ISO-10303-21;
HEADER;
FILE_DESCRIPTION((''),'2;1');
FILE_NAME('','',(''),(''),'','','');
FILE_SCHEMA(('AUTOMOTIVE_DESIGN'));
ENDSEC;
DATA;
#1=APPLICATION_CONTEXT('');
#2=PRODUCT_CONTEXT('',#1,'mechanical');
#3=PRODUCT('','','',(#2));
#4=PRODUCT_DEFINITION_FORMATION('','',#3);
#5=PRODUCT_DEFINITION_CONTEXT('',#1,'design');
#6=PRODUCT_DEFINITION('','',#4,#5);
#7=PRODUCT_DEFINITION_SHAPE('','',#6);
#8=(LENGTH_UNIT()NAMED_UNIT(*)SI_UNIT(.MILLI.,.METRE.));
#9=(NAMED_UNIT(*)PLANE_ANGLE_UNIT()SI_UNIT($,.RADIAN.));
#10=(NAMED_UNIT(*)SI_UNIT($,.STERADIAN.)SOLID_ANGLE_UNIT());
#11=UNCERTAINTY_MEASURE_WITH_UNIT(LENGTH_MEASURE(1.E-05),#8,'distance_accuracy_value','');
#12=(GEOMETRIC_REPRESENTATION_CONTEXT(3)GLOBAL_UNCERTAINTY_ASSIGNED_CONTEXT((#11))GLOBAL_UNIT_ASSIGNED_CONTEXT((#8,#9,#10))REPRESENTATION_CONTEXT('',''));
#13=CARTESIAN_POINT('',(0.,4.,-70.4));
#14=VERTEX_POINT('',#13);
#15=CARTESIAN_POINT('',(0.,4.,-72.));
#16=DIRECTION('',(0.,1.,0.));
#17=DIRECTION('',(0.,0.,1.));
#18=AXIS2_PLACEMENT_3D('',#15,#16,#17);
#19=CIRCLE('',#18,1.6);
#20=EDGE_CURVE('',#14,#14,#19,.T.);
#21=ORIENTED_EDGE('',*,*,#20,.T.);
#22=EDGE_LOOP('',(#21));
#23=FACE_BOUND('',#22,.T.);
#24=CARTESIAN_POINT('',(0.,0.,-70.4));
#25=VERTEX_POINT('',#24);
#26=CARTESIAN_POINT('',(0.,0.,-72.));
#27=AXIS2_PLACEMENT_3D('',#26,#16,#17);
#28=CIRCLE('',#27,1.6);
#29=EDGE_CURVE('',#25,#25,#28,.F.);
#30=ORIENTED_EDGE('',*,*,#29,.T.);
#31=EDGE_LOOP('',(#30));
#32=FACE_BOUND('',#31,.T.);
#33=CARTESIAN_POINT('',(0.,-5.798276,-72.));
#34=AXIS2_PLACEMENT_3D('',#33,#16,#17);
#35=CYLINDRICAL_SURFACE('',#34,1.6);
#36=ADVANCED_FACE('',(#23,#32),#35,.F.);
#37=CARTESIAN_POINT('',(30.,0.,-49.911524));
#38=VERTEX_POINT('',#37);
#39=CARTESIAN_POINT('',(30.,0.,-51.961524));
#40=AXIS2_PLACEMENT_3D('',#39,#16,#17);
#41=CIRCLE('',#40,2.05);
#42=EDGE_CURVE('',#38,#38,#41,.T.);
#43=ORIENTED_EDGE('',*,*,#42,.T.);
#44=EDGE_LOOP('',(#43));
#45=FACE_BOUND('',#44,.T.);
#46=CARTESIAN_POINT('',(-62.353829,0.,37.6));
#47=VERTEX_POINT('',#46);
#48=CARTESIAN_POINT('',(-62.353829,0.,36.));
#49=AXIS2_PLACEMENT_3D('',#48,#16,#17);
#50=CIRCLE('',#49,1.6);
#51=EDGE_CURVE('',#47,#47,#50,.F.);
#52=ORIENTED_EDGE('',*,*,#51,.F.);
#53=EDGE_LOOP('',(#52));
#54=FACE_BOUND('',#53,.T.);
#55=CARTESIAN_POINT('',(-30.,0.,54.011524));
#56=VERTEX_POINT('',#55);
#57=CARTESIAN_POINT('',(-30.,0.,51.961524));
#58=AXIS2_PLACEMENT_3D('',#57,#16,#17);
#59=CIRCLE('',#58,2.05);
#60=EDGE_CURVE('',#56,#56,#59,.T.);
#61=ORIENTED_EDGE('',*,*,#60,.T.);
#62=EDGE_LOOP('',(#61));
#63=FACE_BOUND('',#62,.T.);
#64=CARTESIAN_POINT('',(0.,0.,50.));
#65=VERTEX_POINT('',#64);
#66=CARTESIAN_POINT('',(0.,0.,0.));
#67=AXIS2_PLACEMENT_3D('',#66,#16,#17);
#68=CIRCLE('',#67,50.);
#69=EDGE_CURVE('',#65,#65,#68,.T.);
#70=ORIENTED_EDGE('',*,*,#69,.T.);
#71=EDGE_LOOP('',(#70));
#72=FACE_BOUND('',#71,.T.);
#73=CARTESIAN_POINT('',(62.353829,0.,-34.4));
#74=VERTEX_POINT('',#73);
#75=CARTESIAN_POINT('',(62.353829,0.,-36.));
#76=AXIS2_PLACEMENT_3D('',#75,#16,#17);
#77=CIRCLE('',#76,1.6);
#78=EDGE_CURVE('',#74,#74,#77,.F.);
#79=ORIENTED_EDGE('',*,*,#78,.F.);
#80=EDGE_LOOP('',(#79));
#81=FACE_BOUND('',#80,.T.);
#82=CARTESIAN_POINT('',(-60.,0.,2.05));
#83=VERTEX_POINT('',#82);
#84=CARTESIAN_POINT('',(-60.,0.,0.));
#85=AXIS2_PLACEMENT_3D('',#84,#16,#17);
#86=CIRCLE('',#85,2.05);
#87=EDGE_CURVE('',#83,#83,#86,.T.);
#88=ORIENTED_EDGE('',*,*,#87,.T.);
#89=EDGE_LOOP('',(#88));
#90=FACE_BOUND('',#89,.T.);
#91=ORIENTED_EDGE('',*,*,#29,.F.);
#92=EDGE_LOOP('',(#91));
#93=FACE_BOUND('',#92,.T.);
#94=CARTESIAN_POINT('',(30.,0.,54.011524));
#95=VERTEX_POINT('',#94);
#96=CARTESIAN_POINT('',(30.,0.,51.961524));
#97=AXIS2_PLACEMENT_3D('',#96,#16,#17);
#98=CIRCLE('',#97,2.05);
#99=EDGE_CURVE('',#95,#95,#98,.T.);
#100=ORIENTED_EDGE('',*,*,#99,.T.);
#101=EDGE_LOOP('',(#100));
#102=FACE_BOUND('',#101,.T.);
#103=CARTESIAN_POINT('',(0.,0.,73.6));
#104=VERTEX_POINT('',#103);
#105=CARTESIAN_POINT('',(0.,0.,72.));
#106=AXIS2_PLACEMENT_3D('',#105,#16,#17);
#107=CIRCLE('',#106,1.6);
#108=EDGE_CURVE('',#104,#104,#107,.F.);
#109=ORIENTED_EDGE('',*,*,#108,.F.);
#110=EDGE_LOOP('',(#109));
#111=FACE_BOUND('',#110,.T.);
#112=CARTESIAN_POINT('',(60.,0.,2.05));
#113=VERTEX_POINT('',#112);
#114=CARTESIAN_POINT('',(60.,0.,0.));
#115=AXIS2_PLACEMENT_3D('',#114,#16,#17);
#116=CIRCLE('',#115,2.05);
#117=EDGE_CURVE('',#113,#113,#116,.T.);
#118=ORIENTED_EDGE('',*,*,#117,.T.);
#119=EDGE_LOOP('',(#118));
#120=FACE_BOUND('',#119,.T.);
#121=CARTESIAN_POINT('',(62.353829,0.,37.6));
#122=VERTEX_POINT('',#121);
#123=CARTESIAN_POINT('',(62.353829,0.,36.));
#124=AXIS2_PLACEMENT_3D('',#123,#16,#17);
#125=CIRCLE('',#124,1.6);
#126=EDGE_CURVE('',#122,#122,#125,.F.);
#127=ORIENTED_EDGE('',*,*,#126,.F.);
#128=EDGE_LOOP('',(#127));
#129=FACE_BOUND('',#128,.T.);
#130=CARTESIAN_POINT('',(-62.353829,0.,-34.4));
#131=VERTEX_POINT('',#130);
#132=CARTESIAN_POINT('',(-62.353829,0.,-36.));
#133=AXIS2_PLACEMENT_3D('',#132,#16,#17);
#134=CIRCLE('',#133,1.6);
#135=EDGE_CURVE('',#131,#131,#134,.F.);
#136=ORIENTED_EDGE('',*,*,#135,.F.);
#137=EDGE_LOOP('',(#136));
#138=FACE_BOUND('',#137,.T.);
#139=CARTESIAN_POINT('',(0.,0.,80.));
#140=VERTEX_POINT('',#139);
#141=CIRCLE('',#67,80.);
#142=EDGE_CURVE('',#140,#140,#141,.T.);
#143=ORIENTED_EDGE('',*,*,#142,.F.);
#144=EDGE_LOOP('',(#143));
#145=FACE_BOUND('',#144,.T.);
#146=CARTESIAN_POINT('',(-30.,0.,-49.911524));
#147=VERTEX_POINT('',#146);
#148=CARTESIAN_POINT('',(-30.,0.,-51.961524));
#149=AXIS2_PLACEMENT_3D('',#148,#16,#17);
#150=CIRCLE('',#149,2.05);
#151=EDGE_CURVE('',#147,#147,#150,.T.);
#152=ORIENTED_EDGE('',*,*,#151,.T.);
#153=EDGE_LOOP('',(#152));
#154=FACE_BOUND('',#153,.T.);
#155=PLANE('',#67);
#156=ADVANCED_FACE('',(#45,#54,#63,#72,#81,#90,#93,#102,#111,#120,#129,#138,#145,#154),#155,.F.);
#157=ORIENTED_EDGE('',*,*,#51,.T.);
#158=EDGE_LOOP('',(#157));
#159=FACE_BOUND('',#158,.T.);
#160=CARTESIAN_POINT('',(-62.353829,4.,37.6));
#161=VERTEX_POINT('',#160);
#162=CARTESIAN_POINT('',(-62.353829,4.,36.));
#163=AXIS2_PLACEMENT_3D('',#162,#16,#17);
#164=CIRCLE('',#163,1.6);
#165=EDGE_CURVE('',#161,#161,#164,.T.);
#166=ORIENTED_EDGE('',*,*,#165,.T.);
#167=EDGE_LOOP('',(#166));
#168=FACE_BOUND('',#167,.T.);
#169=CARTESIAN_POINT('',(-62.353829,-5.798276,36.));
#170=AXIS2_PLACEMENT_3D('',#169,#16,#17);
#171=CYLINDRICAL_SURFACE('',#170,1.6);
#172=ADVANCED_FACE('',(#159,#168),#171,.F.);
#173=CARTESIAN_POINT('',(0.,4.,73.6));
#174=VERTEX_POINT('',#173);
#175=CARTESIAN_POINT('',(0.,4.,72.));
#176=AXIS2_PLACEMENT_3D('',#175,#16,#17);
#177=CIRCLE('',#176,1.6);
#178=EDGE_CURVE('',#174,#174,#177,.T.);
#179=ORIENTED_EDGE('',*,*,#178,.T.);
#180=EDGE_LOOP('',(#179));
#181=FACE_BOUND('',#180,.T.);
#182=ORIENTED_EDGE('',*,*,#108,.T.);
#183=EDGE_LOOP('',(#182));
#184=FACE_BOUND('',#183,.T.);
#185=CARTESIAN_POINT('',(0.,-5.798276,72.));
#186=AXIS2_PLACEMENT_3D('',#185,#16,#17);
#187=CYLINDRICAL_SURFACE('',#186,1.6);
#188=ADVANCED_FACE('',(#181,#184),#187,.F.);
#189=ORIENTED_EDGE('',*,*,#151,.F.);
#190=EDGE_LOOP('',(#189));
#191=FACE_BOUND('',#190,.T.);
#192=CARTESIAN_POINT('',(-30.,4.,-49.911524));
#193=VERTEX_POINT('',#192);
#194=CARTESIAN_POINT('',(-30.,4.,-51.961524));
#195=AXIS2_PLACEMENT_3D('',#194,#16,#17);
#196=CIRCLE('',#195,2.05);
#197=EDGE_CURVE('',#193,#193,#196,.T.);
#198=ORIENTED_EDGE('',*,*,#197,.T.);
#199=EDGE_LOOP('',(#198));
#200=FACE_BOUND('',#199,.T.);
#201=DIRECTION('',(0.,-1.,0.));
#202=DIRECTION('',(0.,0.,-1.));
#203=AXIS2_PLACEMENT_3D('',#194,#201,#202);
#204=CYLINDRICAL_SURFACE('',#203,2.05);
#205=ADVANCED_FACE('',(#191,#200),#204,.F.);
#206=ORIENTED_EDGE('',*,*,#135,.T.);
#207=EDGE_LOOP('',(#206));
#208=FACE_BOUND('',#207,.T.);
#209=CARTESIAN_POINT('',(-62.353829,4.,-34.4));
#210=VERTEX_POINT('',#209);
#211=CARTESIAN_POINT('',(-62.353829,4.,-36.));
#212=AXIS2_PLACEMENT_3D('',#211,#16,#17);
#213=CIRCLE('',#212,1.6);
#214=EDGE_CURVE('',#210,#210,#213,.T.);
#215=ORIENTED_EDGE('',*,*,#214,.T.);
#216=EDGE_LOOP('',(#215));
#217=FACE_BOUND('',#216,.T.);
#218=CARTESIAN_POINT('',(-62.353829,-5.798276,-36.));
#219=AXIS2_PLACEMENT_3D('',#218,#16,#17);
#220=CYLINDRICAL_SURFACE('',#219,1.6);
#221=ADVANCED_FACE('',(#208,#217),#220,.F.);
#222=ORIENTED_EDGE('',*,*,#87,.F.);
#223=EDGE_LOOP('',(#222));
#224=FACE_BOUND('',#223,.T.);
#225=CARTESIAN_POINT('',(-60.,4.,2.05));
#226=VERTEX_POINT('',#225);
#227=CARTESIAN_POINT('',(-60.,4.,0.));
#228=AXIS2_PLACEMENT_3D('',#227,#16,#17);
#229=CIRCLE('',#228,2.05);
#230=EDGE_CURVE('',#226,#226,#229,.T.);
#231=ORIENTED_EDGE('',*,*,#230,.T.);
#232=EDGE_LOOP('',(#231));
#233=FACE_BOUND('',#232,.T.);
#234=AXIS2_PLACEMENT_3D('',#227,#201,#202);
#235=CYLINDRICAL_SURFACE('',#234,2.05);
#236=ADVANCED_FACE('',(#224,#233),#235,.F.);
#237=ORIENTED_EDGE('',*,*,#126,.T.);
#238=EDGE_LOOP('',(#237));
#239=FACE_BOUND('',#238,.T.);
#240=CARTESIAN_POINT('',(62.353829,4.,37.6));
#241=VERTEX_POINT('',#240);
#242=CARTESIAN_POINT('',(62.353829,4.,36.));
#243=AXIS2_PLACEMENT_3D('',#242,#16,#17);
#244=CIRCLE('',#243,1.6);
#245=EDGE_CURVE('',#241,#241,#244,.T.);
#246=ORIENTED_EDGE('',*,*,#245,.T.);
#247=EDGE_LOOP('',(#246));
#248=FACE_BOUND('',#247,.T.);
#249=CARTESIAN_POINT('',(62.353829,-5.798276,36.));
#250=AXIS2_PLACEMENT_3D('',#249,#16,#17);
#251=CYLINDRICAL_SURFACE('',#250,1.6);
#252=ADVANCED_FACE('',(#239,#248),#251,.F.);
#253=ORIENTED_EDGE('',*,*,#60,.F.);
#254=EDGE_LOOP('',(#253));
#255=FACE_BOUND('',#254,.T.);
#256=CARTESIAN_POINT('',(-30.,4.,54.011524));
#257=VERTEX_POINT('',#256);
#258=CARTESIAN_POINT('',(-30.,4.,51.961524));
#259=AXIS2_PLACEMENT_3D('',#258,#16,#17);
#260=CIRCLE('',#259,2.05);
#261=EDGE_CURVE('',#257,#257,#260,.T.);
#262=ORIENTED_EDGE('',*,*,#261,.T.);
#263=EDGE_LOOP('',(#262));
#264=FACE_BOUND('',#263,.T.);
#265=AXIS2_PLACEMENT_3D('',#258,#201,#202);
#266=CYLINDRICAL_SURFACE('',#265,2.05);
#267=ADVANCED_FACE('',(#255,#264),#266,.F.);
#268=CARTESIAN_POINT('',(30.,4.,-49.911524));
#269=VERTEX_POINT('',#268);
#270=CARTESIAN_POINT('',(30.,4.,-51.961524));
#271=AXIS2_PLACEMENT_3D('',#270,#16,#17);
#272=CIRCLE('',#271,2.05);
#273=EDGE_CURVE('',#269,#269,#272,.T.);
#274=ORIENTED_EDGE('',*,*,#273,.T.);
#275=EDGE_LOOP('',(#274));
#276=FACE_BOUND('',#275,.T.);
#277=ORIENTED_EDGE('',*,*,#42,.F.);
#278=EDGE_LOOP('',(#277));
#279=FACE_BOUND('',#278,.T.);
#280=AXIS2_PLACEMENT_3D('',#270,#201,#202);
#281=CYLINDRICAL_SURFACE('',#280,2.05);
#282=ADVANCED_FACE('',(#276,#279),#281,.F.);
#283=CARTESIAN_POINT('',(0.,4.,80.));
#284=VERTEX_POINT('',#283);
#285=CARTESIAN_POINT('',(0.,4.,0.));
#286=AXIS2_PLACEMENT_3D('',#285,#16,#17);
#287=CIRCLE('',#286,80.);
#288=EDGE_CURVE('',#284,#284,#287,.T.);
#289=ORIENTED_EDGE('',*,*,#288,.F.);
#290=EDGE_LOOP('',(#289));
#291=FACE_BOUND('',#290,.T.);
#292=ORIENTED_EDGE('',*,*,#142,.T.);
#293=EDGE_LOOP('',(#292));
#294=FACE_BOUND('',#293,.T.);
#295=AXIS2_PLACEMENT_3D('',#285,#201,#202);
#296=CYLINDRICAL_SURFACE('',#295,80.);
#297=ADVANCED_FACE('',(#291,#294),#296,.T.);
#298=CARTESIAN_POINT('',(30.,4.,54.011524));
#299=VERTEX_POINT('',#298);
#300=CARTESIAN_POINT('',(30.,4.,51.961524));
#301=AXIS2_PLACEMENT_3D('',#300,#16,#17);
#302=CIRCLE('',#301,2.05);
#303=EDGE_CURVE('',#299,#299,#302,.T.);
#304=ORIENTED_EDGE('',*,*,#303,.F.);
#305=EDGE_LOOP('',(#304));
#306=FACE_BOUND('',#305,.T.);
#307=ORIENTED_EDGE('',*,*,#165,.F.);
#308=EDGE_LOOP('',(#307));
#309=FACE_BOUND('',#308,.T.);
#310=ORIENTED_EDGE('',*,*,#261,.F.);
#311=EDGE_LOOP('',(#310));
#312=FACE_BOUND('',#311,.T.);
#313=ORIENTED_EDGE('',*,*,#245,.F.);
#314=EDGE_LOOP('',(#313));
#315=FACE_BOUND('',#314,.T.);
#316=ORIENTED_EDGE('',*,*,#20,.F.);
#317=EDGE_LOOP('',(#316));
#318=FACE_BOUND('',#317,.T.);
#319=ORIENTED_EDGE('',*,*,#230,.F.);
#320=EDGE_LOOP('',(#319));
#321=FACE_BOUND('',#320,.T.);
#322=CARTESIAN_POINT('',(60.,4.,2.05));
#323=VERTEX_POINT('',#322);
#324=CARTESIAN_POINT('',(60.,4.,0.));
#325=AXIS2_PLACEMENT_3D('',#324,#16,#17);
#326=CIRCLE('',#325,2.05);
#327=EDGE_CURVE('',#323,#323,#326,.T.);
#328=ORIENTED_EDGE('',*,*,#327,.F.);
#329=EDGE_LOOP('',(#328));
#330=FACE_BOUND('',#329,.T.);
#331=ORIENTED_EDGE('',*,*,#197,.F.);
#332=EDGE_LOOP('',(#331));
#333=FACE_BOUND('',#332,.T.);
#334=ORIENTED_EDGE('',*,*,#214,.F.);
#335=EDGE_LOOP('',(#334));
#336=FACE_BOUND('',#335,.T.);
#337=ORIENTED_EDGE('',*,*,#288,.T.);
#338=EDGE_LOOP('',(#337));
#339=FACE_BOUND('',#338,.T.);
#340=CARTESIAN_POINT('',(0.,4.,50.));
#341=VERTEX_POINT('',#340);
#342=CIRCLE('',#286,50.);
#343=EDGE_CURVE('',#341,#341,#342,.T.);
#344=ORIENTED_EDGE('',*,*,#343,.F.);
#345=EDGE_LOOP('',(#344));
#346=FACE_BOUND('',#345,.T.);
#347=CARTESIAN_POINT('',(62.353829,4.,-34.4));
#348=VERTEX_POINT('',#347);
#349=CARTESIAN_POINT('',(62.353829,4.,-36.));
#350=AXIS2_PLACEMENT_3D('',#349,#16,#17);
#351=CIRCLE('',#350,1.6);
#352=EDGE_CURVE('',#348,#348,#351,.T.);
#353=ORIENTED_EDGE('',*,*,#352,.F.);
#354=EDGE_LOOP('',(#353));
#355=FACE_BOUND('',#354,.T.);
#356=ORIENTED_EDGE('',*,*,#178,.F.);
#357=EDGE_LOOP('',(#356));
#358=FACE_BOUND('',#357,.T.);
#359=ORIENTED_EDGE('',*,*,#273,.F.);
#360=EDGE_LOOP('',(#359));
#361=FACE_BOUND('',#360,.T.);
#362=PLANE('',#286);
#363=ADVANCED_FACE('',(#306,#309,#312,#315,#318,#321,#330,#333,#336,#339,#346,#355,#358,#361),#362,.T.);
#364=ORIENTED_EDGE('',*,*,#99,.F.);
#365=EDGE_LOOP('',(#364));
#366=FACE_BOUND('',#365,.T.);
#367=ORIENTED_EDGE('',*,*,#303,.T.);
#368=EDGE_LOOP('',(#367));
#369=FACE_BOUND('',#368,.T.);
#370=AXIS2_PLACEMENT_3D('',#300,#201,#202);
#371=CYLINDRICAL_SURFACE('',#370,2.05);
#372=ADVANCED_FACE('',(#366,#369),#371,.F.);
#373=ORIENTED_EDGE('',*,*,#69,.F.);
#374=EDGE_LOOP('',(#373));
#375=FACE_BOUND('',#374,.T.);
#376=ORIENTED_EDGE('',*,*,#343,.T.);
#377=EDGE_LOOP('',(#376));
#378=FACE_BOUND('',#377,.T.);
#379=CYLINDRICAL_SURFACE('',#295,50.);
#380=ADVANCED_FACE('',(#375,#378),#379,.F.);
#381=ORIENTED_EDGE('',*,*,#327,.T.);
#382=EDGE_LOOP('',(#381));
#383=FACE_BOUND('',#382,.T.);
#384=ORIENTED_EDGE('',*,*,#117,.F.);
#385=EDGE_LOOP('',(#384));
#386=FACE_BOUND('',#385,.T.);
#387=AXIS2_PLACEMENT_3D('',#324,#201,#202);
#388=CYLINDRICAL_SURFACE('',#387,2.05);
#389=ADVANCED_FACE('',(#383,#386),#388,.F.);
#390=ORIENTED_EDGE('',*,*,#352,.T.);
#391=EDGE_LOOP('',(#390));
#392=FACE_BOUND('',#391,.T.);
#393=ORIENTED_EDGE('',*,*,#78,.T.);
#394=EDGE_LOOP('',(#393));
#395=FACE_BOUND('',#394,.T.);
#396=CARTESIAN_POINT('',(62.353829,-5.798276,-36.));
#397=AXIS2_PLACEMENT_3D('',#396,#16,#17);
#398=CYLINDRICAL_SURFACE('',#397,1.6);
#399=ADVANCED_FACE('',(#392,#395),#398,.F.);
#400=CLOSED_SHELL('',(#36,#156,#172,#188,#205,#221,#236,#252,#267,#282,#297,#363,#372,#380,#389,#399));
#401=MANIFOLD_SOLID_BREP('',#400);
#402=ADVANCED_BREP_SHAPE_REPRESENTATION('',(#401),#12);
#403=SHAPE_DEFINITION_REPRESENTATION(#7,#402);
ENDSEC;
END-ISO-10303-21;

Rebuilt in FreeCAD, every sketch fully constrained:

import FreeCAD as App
import Part
import Sketcher
from FreeCAD import Vector

doc = App.newDocument("Part")
body = doc.addObject("PartDesign::Body", "Body")

# Sketch on XZ plane
sketch1 = body.newObject("Sketcher::SketchObject", "Sketch")
sketch1.AttachmentSupport = (doc.getObject("XZ_Plane"), [""])
sketch1.MapMode = "FlatFace"
sketch1.addGeometry(Part.Circle(Vector(0, 0, 0), Vector(0, 0, 1), 80), False)
sketch1.addGeometry(Part.Circle(Vector(-62.4, -36, 0), Vector(0, 0, 1), 2), False)
sketch1.addGeometry(Part.Circle(Vector(-30, -52, 0), Vector(0, 0, 1), 2), False)
sketch1.addGeometry(Part.Circle(Vector(0, -72, 0), Vector(0, 0, 1), 2), False)
sketch1.addGeometry(Part.Circle(Vector(-60, 0, 0), Vector(0, 0, 1), 2), False)
sketch1.addGeometry(Part.Circle(Vector(-62.4, 36, 0), Vector(0, 0, 1), 2), False)
sketch1.addGeometry(Part.Circle(Vector(-30, 52, 0), Vector(0, 0, 1), 2), False)
sketch1.addGeometry(Part.Circle(Vector(30, -52, 0), Vector(0, 0, 1), 2), False)
sketch1.addGeometry(Part.Circle(Vector(62.4, -36, 0), Vector(0, 0, 1), 2), False)
sketch1.addGeometry(Part.Circle(Vector(60, 0, 0), Vector(0, 0, 1), 2), False)
sketch1.addGeometry(Part.Circle(Vector(0, 0, 0), Vector(0, 0, 1), 50), False)
sketch1.addGeometry(Part.Circle(Vector(0, 72, 0), Vector(0, 0, 1), 2), False)
sketch1.addGeometry(Part.Circle(Vector(30, 52, 0), Vector(0, 0, 1), 2), False)
sketch1.addGeometry(Part.Circle(Vector(62.4, 36, 0), Vector(0, 0, 1), 2), False)
sketch1.addConstraint(Sketcher.Constraint("Coincident", 0, 3, -1, 1))
sketch1.addConstraint(Sketcher.Constraint("Coincident", 10, 3, -1, 1))
sketch1.addConstraint(Sketcher.Constraint("Equal", 1, 2))
sketch1.addConstraint(Sketcher.Constraint("Equal", 2, 3))
sketch1.addConstraint(Sketcher.Constraint("Equal", 3, 4))
sketch1.addConstraint(Sketcher.Constraint("Equal", 4, 5))
sketch1.addConstraint(Sketcher.Constraint("Equal", 5, 6))
sketch1.addConstraint(Sketcher.Constraint("Equal", 6, 7))
sketch1.addConstraint(Sketcher.Constraint("Equal", 7, 8))
sketch1.addConstraint(Sketcher.Constraint("Equal", 8, 9))
sketch1.addConstraint(Sketcher.Constraint("Equal", 9, 11))
sketch1.addConstraint(Sketcher.Constraint("Equal", 11, 12))
sketch1.addConstraint(Sketcher.Constraint("Equal", 12, 13))
sketch1.addConstraint(Sketcher.Constraint("Symmetric", 6, 3, 7, 3, -1, 1))
sketch1.addConstraint(Sketcher.Constraint("Symmetric", 5, 3, 8, 3, -1, 1))
sketch1.addConstraint(Sketcher.Constraint("Symmetric", 4, 3, 9, 3, -1, 1))
sketch1.addConstraint(Sketcher.Constraint("Symmetric", 3, 3, 11, 3, -1, 1))
sketch1.addConstraint(Sketcher.Constraint("Symmetric", 2, 3, 12, 3, -1, 1))
sketch1.addConstraint(Sketcher.Constraint("Symmetric", 1, 3, 13, 3, -1, 1))
sketch1.addConstraint(Sketcher.Constraint("Symmetric", 2, 3, 7, 3, -2))
sketch1.addConstraint(Sketcher.Constraint("Symmetric", 1, 3, 8, 3, -2))
sketch1.addConstraint(Sketcher.Constraint("PointOnObject", 3, 3, -2))
sketch1.addConstraint(Sketcher.Constraint("PointOnObject", 4, 3, -1))
sketch1.addConstraint(Sketcher.Constraint("Diameter", 0, 160.0))
sketch1.addConstraint(Sketcher.Constraint("Diameter", 10, 100.0))
sketch1.addConstraint(Sketcher.Constraint("Diameter", 1, 4.1))
sketch1.addConstraint(Sketcher.Constraint("DistanceY", 1, 3, -1, 1, 36.0))
sketch1.addConstraint(Sketcher.Constraint("DistanceX", 2, 3, -1, 1, 30.0))
sketch1.addConstraint(Sketcher.Constraint("DistanceY", 3, 3, -1, 1, 72.0))
sketch1.addConstraint(Sketcher.Constraint("DistanceX", 4, 3, -1, 1, 60.0))
sketch1.addConstraint(Sketcher.Constraint("DistanceX", 1, 3, -1, 1, 62.353829))
sketch1.addConstraint(Sketcher.Constraint("DistanceY", 2, 3, 6, 3, 103.923048))
pad1 = body.newObject("PartDesign::Pad", "Pad")
pad1.Profile = sketch1
pad1.Length = 4
pad1.Reversed = True

# Sketch on XZ plane
sketch2 = body.newObject("Sketcher::SketchObject", "Sketch001")
sketch2.AttachmentSupport = (doc.getObject("XZ_Plane"), [""])
sketch2.MapMode = "FlatFace"
sketch2.addGeometry(Part.Circle(Vector(62.4, -36, 0), Vector(0, 0, 1), 2), False)
sketch2.addGeometry(Part.Circle(Vector(62.4, -36, 0), Vector(0, 0, 1), 1.6), False)
sketch2.addGeometry(Part.Circle(Vector(62.4, 36, 0), Vector(0, 0, 1), 2), False)
sketch2.addGeometry(Part.Circle(Vector(62.4, 36, 0), Vector(0, 0, 1), 1.6), False)
sketch2.addGeometry(Part.Circle(Vector(0, 72, 0), Vector(0, 0, 1), 2), False)
sketch2.addGeometry(Part.Circle(Vector(0, 72, 0), Vector(0, 0, 1), 1.6), False)
sketch2.addGeometry(Part.Circle(Vector(-62.4, 36, 0), Vector(0, 0, 1), 2), False)
sketch2.addGeometry(Part.Circle(Vector(-62.4, 36, 0), Vector(0, 0, 1), 1.6), False)
sketch2.addGeometry(Part.Circle(Vector(-62.4, -36, 0), Vector(0, 0, 1), 2), False)
sketch2.addGeometry(Part.Circle(Vector(-62.4, -36, 0), Vector(0, 0, 1), 1.6), False)
sketch2.addGeometry(Part.Circle(Vector(0, -72, 0), Vector(0, 0, 1), 2), False)
sketch2.addGeometry(Part.Circle(Vector(0, -72, 0), Vector(0, 0, 1), 1.6), False)
sketch2.addConstraint(Sketcher.Constraint("Coincident", 1, 3, 0, 3))
sketch2.addConstraint(Sketcher.Constraint("Coincident", 3, 3, 2, 3))
sketch2.addConstraint(Sketcher.Constraint("Coincident", 5, 3, 4, 3))
sketch2.addConstraint(Sketcher.Constraint("Coincident", 7, 3, 6, 3))
sketch2.addConstraint(Sketcher.Constraint("Coincident", 9, 3, 8, 3))
sketch2.addConstraint(Sketcher.Constraint("Coincident", 11, 3, 10, 3))
sketch2.addConstraint(Sketcher.Constraint("Equal", 0, 2))
sketch2.addConstraint(Sketcher.Constraint("Equal", 1, 3))
sketch2.addConstraint(Sketcher.Constraint("Equal", 2, 4))
sketch2.addConstraint(Sketcher.Constraint("Equal", 3, 5))
sketch2.addConstraint(Sketcher.Constraint("Equal", 4, 6))
sketch2.addConstraint(Sketcher.Constraint("Equal", 5, 7))
sketch2.addConstraint(Sketcher.Constraint("Equal", 6, 8))
sketch2.addConstraint(Sketcher.Constraint("Equal", 7, 9))
sketch2.addConstraint(Sketcher.Constraint("Equal", 8, 10))
sketch2.addConstraint(Sketcher.Constraint("Equal", 9, 11))
sketch2.addConstraint(Sketcher.Constraint("Symmetric", 0, 3, 6, 3, -1, 1))
sketch2.addConstraint(Sketcher.Constraint("Symmetric", 2, 3, 8, 3, -1, 1))
sketch2.addConstraint(Sketcher.Constraint("Symmetric", 4, 3, 10, 3, -1, 1))
sketch2.addConstraint(Sketcher.Constraint("Symmetric", 2, 3, 6, 3, -2))
sketch2.addConstraint(Sketcher.Constraint("PointOnObject", 4, 3, -2))
sketch2.addConstraint(Sketcher.Constraint("Diameter", 0, 4.1))
sketch2.addConstraint(Sketcher.Constraint("Diameter", 1, 3.2))
sketch2.addConstraint(Sketcher.Constraint("DistanceY", 0, 3, -1, 1, 36.0))
sketch2.addConstraint(Sketcher.Constraint("DistanceY", -1, 1, 4, 3, 72.0))
sketch2.addConstraint(Sketcher.Constraint("DistanceX", -1, 1, 0, 3, 62.353829))
pad2 = body.newObject("PartDesign::Pad", "Pad001")
pad2.Profile = sketch2
pad2.Length = 4
pad2.Reversed = True

doc.recompute()
